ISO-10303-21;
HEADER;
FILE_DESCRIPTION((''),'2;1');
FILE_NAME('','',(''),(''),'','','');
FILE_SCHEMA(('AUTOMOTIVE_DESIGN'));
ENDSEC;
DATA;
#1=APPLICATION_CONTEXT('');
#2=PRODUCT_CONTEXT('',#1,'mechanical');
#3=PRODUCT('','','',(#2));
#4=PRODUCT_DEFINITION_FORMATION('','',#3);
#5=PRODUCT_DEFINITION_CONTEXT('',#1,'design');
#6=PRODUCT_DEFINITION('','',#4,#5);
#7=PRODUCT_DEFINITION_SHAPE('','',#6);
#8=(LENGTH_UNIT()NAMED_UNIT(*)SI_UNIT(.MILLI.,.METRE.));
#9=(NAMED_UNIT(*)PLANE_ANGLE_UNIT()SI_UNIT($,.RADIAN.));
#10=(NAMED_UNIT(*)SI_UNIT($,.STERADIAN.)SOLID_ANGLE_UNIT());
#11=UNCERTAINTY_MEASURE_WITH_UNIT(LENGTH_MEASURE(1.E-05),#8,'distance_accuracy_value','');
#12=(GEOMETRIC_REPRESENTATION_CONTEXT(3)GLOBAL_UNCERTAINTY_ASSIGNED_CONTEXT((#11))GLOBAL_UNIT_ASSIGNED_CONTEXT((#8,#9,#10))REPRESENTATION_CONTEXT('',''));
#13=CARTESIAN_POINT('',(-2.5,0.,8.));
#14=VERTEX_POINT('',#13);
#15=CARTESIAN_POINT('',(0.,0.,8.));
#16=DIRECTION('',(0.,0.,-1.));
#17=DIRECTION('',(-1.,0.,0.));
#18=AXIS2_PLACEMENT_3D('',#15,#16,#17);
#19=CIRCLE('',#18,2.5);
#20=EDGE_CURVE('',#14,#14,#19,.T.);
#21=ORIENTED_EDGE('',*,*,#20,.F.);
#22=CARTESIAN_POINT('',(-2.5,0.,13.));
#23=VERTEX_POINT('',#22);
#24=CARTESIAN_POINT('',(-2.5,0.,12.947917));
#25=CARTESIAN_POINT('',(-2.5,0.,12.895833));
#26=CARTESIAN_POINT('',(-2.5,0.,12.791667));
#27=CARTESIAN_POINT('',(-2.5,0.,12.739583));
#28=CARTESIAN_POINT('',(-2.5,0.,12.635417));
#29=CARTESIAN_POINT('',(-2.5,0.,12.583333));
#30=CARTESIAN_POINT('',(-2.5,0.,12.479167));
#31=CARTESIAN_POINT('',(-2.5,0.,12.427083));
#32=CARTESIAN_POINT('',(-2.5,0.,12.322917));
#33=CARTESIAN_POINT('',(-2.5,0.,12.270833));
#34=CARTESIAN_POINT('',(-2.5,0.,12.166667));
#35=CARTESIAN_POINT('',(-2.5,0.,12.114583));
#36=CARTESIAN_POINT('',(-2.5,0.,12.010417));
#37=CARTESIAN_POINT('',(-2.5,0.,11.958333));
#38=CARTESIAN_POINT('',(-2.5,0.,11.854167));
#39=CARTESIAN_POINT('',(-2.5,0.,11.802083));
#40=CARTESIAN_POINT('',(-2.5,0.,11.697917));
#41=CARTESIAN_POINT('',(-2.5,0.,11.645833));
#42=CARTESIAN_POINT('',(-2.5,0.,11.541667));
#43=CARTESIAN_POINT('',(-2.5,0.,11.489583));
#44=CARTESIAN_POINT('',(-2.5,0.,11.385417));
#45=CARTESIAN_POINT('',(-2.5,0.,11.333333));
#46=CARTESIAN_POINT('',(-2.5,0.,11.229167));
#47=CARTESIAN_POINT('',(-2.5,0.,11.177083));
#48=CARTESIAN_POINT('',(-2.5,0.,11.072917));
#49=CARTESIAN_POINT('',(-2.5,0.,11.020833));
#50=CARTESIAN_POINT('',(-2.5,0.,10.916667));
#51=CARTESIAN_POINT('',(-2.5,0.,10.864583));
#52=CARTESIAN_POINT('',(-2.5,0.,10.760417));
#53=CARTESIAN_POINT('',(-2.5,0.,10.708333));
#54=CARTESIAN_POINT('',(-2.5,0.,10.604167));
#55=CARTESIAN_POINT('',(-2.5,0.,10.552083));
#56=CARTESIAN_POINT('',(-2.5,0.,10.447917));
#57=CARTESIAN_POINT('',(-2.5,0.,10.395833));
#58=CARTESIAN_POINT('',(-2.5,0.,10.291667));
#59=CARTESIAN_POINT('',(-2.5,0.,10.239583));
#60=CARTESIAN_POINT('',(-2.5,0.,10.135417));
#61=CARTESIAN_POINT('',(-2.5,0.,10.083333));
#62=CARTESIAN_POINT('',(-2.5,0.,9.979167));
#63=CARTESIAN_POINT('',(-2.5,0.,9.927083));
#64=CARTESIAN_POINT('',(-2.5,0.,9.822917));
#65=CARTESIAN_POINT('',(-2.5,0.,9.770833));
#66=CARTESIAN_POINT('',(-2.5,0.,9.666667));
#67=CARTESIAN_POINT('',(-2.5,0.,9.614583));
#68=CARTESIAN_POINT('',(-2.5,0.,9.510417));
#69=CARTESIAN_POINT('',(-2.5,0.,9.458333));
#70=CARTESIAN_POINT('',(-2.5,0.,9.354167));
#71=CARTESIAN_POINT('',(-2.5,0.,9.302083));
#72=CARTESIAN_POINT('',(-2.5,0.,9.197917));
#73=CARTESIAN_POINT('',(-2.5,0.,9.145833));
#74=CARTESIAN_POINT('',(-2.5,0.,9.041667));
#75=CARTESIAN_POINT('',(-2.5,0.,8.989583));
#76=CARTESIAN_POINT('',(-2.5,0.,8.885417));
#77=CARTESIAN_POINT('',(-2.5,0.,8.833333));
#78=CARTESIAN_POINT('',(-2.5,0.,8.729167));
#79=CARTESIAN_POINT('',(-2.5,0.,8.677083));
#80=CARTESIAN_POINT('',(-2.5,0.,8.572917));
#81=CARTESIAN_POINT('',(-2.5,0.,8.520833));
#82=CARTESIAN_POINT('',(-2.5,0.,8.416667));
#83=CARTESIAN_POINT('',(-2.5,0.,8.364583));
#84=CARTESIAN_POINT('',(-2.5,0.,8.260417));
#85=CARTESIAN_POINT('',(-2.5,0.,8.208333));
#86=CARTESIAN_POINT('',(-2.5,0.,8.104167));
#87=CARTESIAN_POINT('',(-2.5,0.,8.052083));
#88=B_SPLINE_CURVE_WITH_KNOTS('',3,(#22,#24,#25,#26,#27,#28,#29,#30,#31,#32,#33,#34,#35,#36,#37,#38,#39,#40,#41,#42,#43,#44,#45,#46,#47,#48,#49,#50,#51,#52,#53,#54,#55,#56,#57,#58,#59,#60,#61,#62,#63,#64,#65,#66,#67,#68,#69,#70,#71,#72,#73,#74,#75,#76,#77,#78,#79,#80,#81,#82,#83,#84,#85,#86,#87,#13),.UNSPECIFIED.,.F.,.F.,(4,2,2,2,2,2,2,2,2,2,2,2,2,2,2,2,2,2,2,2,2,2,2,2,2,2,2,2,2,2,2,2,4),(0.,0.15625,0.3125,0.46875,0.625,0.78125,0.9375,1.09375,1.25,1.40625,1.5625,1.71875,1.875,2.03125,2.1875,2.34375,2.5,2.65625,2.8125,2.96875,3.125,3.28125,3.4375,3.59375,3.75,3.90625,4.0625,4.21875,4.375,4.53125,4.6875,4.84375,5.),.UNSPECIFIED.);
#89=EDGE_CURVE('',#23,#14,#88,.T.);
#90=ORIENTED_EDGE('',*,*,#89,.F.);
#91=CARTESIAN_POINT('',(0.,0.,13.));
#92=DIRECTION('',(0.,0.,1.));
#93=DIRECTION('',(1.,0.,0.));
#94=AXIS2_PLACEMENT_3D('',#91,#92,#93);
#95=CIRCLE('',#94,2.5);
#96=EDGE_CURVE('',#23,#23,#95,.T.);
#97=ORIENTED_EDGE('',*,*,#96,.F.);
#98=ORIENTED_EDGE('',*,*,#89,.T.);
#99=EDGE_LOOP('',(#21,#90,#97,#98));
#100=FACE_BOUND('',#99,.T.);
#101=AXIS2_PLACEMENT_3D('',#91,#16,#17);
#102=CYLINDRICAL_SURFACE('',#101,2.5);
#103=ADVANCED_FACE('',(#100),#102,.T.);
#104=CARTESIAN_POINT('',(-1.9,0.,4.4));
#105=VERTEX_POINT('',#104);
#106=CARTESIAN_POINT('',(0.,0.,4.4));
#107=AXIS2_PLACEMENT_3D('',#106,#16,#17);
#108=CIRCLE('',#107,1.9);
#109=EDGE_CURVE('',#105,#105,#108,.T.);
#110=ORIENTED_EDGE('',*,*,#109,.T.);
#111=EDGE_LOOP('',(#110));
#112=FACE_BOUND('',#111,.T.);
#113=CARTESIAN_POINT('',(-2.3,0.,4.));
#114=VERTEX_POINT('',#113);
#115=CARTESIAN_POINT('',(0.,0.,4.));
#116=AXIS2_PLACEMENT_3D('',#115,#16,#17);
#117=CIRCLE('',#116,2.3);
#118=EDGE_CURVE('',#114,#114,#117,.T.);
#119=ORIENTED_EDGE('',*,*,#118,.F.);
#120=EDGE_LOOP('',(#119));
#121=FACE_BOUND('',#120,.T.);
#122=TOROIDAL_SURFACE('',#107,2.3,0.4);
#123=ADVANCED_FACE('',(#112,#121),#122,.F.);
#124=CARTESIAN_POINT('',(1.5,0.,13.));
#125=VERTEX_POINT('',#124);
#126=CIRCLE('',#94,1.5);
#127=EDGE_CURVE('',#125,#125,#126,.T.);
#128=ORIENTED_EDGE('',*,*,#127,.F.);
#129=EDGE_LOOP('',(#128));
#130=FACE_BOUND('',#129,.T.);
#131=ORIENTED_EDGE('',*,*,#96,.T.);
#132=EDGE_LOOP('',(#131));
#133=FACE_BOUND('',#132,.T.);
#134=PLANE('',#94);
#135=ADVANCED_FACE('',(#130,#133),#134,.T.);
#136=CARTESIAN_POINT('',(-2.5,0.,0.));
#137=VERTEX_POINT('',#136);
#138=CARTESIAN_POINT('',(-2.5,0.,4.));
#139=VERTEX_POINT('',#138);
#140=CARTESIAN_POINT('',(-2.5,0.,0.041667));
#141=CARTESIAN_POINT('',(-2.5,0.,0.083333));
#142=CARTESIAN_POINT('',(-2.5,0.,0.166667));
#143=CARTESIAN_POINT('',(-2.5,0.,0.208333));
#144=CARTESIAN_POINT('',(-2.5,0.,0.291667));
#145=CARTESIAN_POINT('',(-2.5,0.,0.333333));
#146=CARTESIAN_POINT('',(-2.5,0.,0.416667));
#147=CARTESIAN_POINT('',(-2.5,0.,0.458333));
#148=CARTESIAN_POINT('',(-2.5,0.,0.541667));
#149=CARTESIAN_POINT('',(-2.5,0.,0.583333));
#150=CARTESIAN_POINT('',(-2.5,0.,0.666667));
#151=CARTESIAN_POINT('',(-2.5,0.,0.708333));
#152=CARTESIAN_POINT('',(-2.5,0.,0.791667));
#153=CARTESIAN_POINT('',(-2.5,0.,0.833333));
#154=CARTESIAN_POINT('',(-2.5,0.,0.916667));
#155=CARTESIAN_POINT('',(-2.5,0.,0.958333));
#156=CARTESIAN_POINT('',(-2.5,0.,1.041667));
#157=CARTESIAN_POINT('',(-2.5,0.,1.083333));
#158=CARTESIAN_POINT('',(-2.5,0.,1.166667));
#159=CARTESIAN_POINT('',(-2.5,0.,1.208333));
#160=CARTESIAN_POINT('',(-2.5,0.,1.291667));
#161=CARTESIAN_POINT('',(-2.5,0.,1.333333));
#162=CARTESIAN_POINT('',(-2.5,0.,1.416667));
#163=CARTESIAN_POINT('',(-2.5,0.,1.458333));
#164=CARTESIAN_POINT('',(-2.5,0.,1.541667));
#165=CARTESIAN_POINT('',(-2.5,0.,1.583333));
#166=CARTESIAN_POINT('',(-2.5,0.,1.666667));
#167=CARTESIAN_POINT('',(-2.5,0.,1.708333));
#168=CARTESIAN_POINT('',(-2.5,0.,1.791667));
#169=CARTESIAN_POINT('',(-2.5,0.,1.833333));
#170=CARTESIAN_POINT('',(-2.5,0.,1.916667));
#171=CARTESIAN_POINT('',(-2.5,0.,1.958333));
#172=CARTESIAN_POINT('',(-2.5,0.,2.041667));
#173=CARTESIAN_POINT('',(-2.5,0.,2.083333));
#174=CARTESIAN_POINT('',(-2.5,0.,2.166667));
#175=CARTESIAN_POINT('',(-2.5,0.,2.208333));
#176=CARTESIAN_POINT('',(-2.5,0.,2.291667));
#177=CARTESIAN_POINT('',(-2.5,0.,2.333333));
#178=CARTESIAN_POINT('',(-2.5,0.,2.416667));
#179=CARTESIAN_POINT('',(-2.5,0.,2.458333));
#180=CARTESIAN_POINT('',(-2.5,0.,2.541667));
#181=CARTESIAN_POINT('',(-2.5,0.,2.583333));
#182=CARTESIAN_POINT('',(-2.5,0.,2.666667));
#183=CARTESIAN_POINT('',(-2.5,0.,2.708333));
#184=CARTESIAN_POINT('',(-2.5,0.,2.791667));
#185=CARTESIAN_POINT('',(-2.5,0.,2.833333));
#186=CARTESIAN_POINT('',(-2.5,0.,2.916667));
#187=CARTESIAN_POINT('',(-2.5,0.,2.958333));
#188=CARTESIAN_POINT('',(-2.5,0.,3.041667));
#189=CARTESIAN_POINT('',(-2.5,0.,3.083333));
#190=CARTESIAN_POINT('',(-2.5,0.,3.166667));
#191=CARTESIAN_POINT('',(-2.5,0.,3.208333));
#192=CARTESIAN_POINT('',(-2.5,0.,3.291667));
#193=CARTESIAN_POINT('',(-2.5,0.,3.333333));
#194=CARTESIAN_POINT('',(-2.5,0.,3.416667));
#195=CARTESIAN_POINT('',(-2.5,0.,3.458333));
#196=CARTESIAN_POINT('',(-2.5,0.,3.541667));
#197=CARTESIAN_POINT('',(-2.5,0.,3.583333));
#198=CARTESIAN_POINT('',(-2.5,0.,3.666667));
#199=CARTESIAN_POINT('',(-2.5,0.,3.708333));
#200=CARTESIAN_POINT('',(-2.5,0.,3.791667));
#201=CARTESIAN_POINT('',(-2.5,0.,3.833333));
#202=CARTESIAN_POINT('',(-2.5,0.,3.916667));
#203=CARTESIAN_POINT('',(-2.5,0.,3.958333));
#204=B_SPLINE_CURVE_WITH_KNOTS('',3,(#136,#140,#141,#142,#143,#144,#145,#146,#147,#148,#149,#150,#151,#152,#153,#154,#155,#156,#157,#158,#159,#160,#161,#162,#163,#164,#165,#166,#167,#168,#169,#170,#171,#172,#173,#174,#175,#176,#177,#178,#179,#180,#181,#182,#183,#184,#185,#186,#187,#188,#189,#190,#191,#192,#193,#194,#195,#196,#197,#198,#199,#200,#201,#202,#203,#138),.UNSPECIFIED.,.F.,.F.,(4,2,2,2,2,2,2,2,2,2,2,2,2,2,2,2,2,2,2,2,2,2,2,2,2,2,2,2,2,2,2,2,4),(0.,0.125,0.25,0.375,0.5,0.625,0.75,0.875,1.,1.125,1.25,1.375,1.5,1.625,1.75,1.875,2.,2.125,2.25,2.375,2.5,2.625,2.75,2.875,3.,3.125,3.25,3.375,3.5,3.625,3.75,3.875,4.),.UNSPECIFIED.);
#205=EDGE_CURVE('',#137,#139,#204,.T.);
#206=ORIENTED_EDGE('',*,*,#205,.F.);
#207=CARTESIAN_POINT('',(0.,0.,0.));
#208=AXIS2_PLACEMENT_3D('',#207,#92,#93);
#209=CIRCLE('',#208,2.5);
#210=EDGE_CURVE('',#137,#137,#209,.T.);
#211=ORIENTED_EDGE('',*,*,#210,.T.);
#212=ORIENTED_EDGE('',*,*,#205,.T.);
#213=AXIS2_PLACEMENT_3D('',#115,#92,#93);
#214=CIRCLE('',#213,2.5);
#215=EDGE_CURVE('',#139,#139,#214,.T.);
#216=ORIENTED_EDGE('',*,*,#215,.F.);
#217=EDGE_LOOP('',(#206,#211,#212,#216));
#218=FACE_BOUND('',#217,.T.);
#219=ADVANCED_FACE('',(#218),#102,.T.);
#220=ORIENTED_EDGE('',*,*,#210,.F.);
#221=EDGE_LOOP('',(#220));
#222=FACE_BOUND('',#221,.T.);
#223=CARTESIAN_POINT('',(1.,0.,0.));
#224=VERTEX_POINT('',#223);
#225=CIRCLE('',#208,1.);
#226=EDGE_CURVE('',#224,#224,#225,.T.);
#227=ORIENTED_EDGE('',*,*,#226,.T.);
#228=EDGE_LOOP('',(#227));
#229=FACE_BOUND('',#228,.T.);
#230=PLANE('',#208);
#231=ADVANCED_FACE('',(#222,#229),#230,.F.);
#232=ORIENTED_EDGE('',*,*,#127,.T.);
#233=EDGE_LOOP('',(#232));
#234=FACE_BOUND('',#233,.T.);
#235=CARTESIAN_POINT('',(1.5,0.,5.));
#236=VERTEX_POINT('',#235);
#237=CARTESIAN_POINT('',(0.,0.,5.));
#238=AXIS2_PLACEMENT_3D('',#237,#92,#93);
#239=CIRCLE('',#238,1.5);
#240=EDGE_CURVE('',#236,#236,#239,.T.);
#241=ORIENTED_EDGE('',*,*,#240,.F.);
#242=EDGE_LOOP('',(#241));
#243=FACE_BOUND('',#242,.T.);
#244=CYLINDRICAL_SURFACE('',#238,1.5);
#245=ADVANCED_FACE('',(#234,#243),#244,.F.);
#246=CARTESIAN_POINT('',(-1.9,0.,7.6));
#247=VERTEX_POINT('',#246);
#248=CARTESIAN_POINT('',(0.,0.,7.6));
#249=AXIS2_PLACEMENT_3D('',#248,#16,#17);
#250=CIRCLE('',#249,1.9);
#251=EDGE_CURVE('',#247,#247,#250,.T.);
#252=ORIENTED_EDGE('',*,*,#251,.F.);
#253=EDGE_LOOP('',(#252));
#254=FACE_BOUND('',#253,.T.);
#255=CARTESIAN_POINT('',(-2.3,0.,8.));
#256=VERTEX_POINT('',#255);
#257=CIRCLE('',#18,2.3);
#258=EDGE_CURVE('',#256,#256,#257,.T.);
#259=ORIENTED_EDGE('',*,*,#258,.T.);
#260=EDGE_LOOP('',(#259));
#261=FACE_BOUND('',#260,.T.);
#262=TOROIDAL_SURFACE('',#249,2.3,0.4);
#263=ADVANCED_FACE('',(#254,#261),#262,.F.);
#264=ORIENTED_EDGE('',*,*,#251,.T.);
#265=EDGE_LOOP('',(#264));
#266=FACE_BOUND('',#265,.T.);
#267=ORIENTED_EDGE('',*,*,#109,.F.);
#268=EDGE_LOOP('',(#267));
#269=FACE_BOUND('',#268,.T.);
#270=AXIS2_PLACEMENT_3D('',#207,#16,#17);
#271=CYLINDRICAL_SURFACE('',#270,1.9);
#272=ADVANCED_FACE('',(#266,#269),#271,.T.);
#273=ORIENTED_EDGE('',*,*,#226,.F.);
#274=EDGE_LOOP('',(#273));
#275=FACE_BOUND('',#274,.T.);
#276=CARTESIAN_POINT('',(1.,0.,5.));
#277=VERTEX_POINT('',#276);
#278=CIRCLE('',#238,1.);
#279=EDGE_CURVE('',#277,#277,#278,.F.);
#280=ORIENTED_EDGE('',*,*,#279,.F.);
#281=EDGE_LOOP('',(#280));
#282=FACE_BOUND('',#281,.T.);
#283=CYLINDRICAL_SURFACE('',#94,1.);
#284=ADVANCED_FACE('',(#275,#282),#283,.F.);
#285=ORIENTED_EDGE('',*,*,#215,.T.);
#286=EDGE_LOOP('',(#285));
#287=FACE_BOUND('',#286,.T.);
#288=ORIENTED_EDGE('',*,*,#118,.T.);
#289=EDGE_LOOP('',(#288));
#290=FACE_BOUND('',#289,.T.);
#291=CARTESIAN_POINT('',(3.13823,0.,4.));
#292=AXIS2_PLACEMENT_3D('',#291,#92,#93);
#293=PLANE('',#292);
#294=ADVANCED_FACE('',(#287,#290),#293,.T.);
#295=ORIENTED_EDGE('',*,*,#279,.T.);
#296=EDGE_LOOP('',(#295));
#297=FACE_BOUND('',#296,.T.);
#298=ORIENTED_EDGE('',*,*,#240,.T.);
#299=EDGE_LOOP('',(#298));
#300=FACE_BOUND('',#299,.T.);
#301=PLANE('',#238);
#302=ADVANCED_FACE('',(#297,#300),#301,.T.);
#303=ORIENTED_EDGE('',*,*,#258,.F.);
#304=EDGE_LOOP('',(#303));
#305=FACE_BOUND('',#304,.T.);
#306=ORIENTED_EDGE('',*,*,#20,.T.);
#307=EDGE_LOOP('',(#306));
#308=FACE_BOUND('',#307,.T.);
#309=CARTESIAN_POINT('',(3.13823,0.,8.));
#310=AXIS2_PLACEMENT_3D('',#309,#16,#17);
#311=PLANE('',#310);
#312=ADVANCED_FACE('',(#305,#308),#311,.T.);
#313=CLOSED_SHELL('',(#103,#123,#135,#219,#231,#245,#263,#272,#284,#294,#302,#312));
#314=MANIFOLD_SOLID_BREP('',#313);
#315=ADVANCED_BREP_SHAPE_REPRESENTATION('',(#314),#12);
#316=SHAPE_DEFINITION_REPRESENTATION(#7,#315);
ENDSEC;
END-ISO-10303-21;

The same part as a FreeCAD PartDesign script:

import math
import FreeCAD as App
import Part
import Sketcher
from FreeCAD import Vector

doc = App.newDocument("Part")
params = doc.addObject("Spreadsheet::Sheet", "Params")
for row, (alias, value) in enumerate([
    ("sketch1_diameter", "5 mm"),
    ("pad1_length", "13 mm"),
    ("sketch2_radius", "0.4 mm"),
    ("sketch2_height", "4 mm"),
    ("groove_angle", "360 deg"),
    ("sketch3_diameter", "2 mm"),
    ("hole_diameter", "2 mm"),
    ("sketch4_diameter", "3 mm"),
    ("pocket1_length", "8 mm"),
], start=1):
    params.set(f"A{row}", alias)
    params.set(f"B{row}", "=" + value)
    params.setAlias(f"B{row}", alias)

body = doc.addObject("PartDesign::Body", "Body")

# Sketch on XY plane
sketch1 = body.newObject("Sketcher::SketchObject", "Sketch")
sketch1.AttachmentSupport = (doc.getObject("XY_Plane"), [""])
sketch1.MapMode = "FlatFace"
sketch1.addGeometry(Part.Circle(Vector(0, 0, 0), Vector(0, 0, 1), 2.5), False)
sketch1.addConstraint([
    Sketcher.Constraint("Coincident", 0, 3, -1, 1),
    Sketcher.Constraint("Diameter", 0, 5.0),
])
sketch1.setExpression("Constraints[1]", "Params.sketch1_diameter")
pad1 = body.newObject("PartDesign::Pad", "Pad")
pad1.Profile = sketch1
pad1.setExpression("Length", "Params.pad1_length")

# Sketch on XZ plane
sketch2 = body.newObject("Sketcher::SketchObject", "Sketch001")
sketch2.AttachmentSupport = (doc.getObject("XZ_Plane"), [""])
sketch2.MapMode = "FlatFace"
sketch2.addGeometry([
    Part.LineSegment(Vector(3.14, 4, 0), Vector(2.3, 4, 0)),  # 0
    Part.ArcOfCircle(Part.Circle(Vector(2.3, 4.4, 0), Vector(0, 0, 1), 0.4), math.radians(-180), math.radians(-90)),  # 1
    Part.LineSegment(Vector(1.9, 4.4, 0), Vector(1.9, 7.6, 0)),  # 2
    Part.ArcOfCircle(Part.Circle(Vector(2.3, 7.6, 0), Vector(0, 0, 1), 0.4), math.radians(90), math.radians(180)),  # 3
    Part.LineSegment(Vector(2.3, 8, 0), Vector(3.14, 8, 0)),  # 4
    Part.LineSegment(Vector(3.14, 8, 0), Vector(3.14, 4, 0)),  # 5
], False)
sketch2.addConstraint([
    Sketcher.Constraint("Tangent", 0, 2, 1, 2),
    Sketcher.Constraint("Tangent", 1, 1, 2, 1),
    Sketcher.Constraint("Tangent", 2, 2, 3, 2),
    Sketcher.Constraint("Tangent", 3, 1, 4, 1),
    Sketcher.Constraint("Coincident", 4, 2, 5, 1),
    Sketcher.Constraint("Coincident", 5, 2, 0, 1),
    Sketcher.Constraint("Horizontal", 0),
    Sketcher.Constraint("Vertical", 2),
    Sketcher.Constraint("Horizontal", 4),
    Sketcher.Constraint("Vertical", 5),
    Sketcher.Constraint("Equal", 1, 3),
    Sketcher.Constraint("Radius", 1, 0.4),
    Sketcher.Constraint("DistanceY", 5, 2, 5, 1, 4.0),
    Sketcher.Constraint("DistanceY", -1, 1, 0, 2, 4.0),
    Sketcher.Constraint("DistanceX", -1, 1, 1, 3, 2.3),
    Sketcher.Constraint("DistanceX", 0, 2, 0, 1, 0.83823),
])
sketch2.setExpression("Constraints[11]", "Params.sketch2_radius")
sketch2.setExpression("Constraints[12]", "Params.sketch2_height")
groove = body.newObject("PartDesign::Groove", "Groove")
groove.Profile = sketch2
groove.ReferenceAxis = (sketch2, ["V_Axis"])
groove.setExpression("Angle", "Params.groove_angle")

# Sketch on XY plane
sketch3 = body.newObject("Sketcher::SketchObject", "Sketch002")
sketch3.AttachmentSupport = (doc.getObject("XY_Plane"), [""])
sketch3.MapMode = "FlatFace"
sketch3.AttachmentOffset = App.Placement(Vector(0, 0, 13), App.Rotation())
sketch3.addGeometry(Part.Circle(Vector(0, 0, 0), Vector(0, 0, 1), 1), False)
sketch3.addConstraint([
    Sketcher.Constraint("Coincident", 0, 3, -1, 1),
    Sketcher.Constraint("Diameter", 0, 2.0),
])
sketch3.setExpression("Constraints[1]", "Params.sketch3_diameter")
doc.recompute()
hole = body.newObject("PartDesign::Hole", "Hole")
hole.Profile = sketch3
hole.ThreadType = "None"
hole.setExpression("Diameter", "Params.hole_diameter")
hole.DepthType = "ThroughAll"

# Sketch on XY plane
sketch4 = body.newObject("Sketcher::SketchObject", "Sketch003")
sketch4.AttachmentSupport = (doc.getObject("XY_Plane"), [""])
sketch4.MapMode = "FlatFace"
sketch4.AttachmentOffset = App.Placement(Vector(0, 0, 13), App.Rotation())
sketch4.addGeometry(Part.Circle(Vector(0, 0, 0), Vector(0, 0, 1), 1.5), False)
sketch4.addConstraint([
    Sketcher.Constraint("Coincident", 0, 3, -1, 1),
    Sketcher.Constraint("Diameter", 0, 3.0),
])
sketch4.setExpression("Constraints[1]", "Params.sketch4_diameter")
pocket1 = body.newObject("PartDesign::Pocket", "Pocket")
pocket1.Profile = sketch4
pocket1.setExpression("Length", "Params.pocket1_length")

doc.recompute()
